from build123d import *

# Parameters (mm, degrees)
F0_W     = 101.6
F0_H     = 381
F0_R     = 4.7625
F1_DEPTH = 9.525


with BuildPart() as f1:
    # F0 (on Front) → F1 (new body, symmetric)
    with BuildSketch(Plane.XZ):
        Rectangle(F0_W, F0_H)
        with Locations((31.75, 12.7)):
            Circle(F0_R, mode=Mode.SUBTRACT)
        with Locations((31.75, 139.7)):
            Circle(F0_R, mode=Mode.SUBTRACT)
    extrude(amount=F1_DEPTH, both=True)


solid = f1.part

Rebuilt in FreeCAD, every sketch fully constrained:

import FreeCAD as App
import Part
import Sketcher
from FreeCAD import Vector
Q = App.Units.Quantity

doc = App.newDocument("Part")
body = doc.addObject("PartDesign::Body", "Body")

# Sketch on XZ plane
sketch1 = body.newObject("Sketcher::SketchObject", "Sketch")
sketch1.AttachmentSupport = (doc.getObject("XZ_Plane"), [""])
sketch1.MapMode = "FlatFace"
sketch1.addGeometry(Part.LineSegment(Vector(-50.8, 190.5, 0), Vector(-50.8, -190.5, 0)), False)
sketch1.addGeometry(Part.LineSegment(Vector(-50.8, -190.5, 0), Vector(50.8, -190.5, 0)), False)
sketch1.addGeometry(Part.LineSegment(Vector(50.8, -190.5, 0), Vector(50.8, 190.5, 0)), False)
sketch1.addGeometry(Part.LineSegment(Vector(50.8, 190.5, 0), Vector(-50.8, 190.5, 0)), False)
sketch1.addGeometry(Part.Circle(Vector(31.8, 12.7, 0), Vector(0, 0, 1), 4.8), False)
sketch1.addGeometry(Part.Circle(Vector(31.8, 139.7, 0), Vector(0, 0, 1), 4.8), False)
sketch1.addConstraint(Sketcher.Constraint("Coincident", 0, 2, 1, 1))
sketch1.addConstraint(Sketcher.Constraint("Coincident", 1, 2, 2, 1))
sketch1.addConstraint(Sketcher.Constraint("Coincident", 2, 2, 3, 1))
sketch1.addConstraint(Sketcher.Constraint("Coincident", 3, 2, 0, 1))
sketch1.addConstraint(Sketcher.Constraint("Vertical", 0))
sketch1.addConstraint(Sketcher.Constraint("Horizontal", 1))
sketch1.addConstraint(Sketcher.Constraint("Vertical", 2))
sketch1.addConstraint(Sketcher.Constraint("Horizontal", 3))
sketch1.addConstraint(Sketcher.Constraint("Equal", 4, 5))
sketch1.addConstraint(Sketcher.Constraint("Symmetric", 0, 2, 2, 2, -1, 1))
sketch1.addConstraint(Sketcher.Constraint("Vertical", 4, 3, 5, 3))
sketch1.addConstraint(Sketcher.Constraint("DistanceX", 1, 1, 1, 2, Q("4 in")))
sketch1.addConstraint(Sketcher.Constraint("DistanceY", 0, 2, 0, 1, Q("15 in")))
sketch1.addConstraint(Sketcher.Constraint("Diameter", 4, Q("0.375 in")))
sketch1.addConstraint(Sketcher.Constraint("DistanceY", 4, 3, 5, 3, Q("5 in")))
sketch1.addConstraint(Sketcher.Constraint("DistanceY", 0, 2, 4, 3, Q("8 in")))
sketch1.addConstraint(Sketcher.Constraint("DistanceX", -1, 1, 4, 3, Q("1.25 in")))
pad1 = body.newObject("PartDesign::Pad", "Pad")
pad1.Profile = sketch1
pad1.Length = Q("0.75 in")
pad1.Midplane = True

doc.recompute()
